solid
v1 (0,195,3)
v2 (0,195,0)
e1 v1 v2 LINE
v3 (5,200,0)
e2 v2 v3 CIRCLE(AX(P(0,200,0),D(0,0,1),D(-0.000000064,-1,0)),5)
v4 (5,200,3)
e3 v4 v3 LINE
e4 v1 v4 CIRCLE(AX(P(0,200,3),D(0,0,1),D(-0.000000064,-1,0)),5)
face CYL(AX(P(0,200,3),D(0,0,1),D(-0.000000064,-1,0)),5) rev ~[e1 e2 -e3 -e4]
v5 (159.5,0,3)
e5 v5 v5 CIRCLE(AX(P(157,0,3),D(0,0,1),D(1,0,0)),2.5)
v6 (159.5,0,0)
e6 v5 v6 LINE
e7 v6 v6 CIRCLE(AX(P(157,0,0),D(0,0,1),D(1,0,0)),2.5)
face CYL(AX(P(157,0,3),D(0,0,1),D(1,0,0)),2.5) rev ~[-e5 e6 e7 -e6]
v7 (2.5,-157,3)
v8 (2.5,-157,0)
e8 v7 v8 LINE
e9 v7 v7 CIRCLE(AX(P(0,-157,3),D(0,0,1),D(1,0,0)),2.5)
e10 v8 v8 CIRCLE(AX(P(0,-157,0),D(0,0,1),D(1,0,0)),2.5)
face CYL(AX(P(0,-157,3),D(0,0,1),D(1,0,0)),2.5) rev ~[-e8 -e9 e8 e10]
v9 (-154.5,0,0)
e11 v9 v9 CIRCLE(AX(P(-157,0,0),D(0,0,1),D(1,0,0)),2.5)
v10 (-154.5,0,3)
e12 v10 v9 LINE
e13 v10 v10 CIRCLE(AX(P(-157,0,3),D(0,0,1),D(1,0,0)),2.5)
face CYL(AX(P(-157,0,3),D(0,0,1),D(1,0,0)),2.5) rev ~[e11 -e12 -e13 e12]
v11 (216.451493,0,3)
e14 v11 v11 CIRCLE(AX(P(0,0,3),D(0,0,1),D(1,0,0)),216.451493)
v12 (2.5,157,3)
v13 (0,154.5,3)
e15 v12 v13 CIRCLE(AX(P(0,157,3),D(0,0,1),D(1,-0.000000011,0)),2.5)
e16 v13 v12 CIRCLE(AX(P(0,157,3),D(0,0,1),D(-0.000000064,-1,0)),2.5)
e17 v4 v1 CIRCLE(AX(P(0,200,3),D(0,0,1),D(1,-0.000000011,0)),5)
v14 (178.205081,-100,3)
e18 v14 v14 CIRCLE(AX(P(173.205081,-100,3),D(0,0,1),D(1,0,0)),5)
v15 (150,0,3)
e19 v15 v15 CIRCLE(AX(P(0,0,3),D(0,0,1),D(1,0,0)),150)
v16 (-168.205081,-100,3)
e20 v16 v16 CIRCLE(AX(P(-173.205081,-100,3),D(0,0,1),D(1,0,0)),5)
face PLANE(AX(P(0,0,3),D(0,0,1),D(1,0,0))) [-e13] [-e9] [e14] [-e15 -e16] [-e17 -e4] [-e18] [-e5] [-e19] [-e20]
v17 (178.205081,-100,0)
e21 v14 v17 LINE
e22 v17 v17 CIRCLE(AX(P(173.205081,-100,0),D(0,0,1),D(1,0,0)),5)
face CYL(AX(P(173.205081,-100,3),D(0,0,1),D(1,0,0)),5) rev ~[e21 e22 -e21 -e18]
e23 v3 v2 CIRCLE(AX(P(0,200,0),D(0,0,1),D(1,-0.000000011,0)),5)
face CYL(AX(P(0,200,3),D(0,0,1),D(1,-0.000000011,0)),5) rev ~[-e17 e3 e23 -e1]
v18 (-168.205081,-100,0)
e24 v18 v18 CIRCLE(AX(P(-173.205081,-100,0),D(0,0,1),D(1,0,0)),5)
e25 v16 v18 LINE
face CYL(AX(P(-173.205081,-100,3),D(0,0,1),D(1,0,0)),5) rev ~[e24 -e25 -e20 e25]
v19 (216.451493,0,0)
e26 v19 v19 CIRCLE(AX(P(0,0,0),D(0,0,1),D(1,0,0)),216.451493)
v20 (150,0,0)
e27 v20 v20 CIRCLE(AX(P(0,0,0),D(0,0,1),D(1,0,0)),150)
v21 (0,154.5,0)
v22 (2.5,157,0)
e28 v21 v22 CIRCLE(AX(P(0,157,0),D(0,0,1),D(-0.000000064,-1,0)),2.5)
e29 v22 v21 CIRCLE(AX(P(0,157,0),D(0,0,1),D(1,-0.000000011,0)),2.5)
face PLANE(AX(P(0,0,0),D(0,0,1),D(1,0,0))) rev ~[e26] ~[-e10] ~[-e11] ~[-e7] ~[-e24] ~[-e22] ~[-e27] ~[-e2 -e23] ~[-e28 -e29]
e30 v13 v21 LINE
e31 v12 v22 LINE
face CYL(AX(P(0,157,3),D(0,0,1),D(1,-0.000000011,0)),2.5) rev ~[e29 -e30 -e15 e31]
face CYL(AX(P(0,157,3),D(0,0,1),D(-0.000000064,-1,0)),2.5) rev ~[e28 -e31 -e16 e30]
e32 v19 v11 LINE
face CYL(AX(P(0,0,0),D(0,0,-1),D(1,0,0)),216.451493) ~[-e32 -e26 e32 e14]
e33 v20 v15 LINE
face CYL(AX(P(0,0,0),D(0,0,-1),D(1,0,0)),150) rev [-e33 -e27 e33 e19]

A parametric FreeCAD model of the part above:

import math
import FreeCAD as App
import Part
import Sketcher
Q = App.Units.Quantity

doc = App.newDocument("Part")
body = doc.addObject("PartDesign::Body", "Body")

# Sketch on XY plane
sketch1 = body.newObject("Sketcher::SketchObject", "Sketch")
sketch1.AttachmentSupport = (doc.getObject("XY_Plane"), [""])
sketch1.MapMode = "FlatFace"
sketch1.addGeometry([
    Part.Circle(App.Vector(0, 0, 0), App.Vector(0, 0, 1), 216),
    Part.Circle(App.Vector(0, 0, 0), App.Vector(0, 0, 1), 150),
], False)
sketch1.addConstraint([
    Sketcher.Constraint("Coincident", 0, 3, -1, 1),
    Sketcher.Constraint("Coincident", 1, 3, -1, 1),
    Sketcher.Constraint("Diameter", 1, Q("300 mm")),
    Sketcher.Constraint("Diameter", 0, Q("432.902986 mm")),
])
pad1 = body.newObject("PartDesign::Pad", "Pad")
pad1.Profile = sketch1
pad1.Length = 3

# Sketch on XY plane
sketch2 = body.newObject("Sketcher::SketchObject", "Sketch001")
sketch2.AttachmentSupport = (doc.getObject("XY_Plane"), [""])
sketch2.MapMode = "FlatFace"
sketch2.AttachmentOffset = App.Placement(App.Vector(0, 0, 3), App.Rotation())
sketch2.addGeometry([
    Part.ArcOfCircle(Part.Circle(App.Vector(0, 200, 0), App.Vector(0, 0, 1), 5), math.radians(-90), math.radians(0)),
    Part.ArcOfCircle(Part.Circle(App.Vector(0, 200, 0), App.Vector(0, 0, 1), 5), math.radians(0), math.radians(270)),
    Part.Circle(App.Vector(-173.2, -100, 0), App.Vector(0, 0, 1), 5),
    Part.Circle(App.Vector(173.2, -100, 0), App.Vector(0, 0, 1), 5),
], False)
sketch2.addConstraint([
    Sketcher.Constraint("Tangent", 0, 1, 1, 2),
    Sketcher.Constraint("Coincident", 1, 1, 0, 2),
    Sketcher.Constraint("Equal", 1, 2),
    Sketcher.Constraint("Equal", 2, 3),
    Sketcher.Constraint("Symmetric", 2, 3, 3, 3, -2),
    Sketcher.Constraint("PointOnObject", 0, 3, -2),
    Sketcher.Constraint("PointOnObject", 0, 1, -2),
    Sketcher.Constraint("Horizontal", 0, 3, 1, 1),
    Sketcher.Constraint("Diameter", 2, Q("10 mm")),
    Sketcher.Constraint("DistanceY", -1, 1, 0, 3, Q("200 mm")),
    Sketcher.Constraint("DistanceY", 2, 3, -1, 1, Q("100 mm")),
    Sketcher.Constraint("DistanceX", 2, 3, -1, 1, Q("173.205081 mm")),
])
pocket1 = body.newObject("PartDesign::Pocket", "Pocket")
pocket1.Profile = sketch2
pocket1.Length = 3

# Sketch on XY plane
sketch3 = body.newObject("Sketcher::SketchObject", "Sketch002")
sketch3.AttachmentSupport = (doc.getObject("XY_Plane"), [""])
sketch3.MapMode = "FlatFace"
sketch3.AttachmentOffset = App.Placement(App.Vector(0, 0, 3), App.Rotation())
sketch3.addGeometry([
    Part.ArcOfCircle(Part.Circle(App.Vector(0, 157, 0), App.Vector(0, 0, 1), 2.5), math.radians(-90), math.radians(0)),  # 0
    Part.ArcOfCircle(Part.Circle(App.Vector(0, 157, 0), App.Vector(0, 0, 1), 2.5), math.radians(0), math.radians(270)),  # 1
    Part.Circle(App.Vector(-157, 0, 0), App.Vector(0, 0, 1), 2.5),  # 2
    Part.Circle(App.Vector(0, -157, 0), App.Vector(0, 0, 1), 2.5),  # 3
    Part.Circle(App.Vector(157, 0, 0), App.Vector(0, 0, 1), 2.5),  # 4
], False)
sketch3.addConstraint([
    Sketcher.Constraint("Tangent", 0, 1, 1, 2),
    Sketcher.Constraint("Coincident", 1, 1, 0, 2),
    Sketcher.Constraint("Equal", 1, 2),
    Sketcher.Constraint("Equal", 2, 3),
    Sketcher.Constraint("Equal", 3, 4),
    Sketcher.Constraint("Symmetric", 0, 3, 3, 3, -1, 1),
    Sketcher.Constraint("Symmetric", 2, 3, 4, 3, -1, 1),
    Sketcher.Constraint("PointOnObject", 0, 3, -2),
    Sketcher.Constraint("PointOnObject", 2, 3, -1),
    Sketcher.Constraint("PointOnObject", 0, 1, -2),
    Sketcher.Constraint("Horizontal", 0, 3, 1, 1),
    Sketcher.Constraint("Diameter", 2, Q("5 mm")),
    Sketcher.Constraint("DistanceY", -1, 1, 0, 3, Q("157 mm")),
    Sketcher.Constraint("DistanceX", 2, 3, -1, 1, Q("157 mm")),
])
pocket2 = body.newObject("PartDesign::Pocket", "Pocket001")
pocket2.Profile = sketch3
pocket2.Length = 3

doc.recompute()
